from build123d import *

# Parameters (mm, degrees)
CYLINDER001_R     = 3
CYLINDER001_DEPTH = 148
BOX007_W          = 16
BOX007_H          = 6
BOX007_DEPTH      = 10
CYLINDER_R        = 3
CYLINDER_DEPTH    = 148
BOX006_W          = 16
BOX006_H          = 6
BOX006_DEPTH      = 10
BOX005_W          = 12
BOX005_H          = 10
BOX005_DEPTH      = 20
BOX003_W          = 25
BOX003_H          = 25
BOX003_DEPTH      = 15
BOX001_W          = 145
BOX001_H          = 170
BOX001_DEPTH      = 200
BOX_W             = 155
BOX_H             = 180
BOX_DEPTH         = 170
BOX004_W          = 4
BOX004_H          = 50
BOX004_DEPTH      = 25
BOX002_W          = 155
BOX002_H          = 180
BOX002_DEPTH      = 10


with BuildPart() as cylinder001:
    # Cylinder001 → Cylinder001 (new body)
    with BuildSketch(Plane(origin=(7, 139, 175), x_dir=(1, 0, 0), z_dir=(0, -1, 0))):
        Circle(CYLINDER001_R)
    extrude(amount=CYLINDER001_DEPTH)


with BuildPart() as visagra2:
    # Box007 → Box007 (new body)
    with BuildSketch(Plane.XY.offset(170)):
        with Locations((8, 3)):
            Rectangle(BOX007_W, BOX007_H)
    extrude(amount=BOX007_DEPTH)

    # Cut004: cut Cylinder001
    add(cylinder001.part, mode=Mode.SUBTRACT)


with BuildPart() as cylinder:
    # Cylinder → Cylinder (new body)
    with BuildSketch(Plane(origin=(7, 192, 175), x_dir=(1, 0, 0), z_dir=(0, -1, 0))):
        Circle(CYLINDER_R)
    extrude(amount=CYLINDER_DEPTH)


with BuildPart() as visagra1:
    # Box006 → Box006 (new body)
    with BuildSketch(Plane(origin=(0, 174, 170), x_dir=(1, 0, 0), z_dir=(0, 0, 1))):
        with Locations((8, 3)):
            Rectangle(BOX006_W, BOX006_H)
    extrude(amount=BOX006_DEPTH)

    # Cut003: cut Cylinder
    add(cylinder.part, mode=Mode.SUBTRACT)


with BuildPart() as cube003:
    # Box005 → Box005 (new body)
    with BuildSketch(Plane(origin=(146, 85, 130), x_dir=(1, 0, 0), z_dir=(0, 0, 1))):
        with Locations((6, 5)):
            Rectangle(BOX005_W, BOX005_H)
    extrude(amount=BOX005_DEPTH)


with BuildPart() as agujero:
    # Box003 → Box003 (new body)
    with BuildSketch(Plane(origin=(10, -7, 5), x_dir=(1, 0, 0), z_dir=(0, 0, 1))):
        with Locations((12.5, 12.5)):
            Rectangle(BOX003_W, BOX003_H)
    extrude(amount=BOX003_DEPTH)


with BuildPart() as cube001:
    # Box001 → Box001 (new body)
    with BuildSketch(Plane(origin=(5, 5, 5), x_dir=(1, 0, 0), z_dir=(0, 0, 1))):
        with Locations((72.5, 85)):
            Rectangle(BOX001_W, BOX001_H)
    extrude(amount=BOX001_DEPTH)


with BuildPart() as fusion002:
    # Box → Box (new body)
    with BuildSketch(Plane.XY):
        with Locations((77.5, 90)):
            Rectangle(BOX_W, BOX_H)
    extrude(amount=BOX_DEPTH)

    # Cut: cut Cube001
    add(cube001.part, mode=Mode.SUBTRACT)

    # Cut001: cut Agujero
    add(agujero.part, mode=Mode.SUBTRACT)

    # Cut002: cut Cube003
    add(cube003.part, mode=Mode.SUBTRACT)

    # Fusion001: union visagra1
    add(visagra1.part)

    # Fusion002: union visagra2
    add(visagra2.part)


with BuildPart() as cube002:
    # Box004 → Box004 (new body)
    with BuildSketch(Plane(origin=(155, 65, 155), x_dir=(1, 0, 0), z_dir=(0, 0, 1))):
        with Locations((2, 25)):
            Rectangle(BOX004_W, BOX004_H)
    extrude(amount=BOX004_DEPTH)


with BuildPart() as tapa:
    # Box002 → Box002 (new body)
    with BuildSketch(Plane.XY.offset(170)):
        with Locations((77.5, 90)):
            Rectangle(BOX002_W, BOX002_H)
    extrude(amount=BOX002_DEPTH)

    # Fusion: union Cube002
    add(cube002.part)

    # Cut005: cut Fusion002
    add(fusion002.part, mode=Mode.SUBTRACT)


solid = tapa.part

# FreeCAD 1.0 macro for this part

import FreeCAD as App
import Part
import Sketcher

V = App.Vector
Q = App.Units.Quantity

doc = App.newDocument("Part")
body = doc.addObject("PartDesign::Body", "Body")

# Sketch on XZ plane
sketch1 = doc.addObject("Sketcher::SketchObject", "Sketch")
body.addObject(sketch1)
sketch1.AttachmentSupport = (doc.XZ_Plane, [""])
sketch1.MapMode = "FlatFace"
sketch1.AttachmentOffset = App.Placement(V(0, 0, -139), App.Rotation())
sketch1.addGeometry(Part.Circle(V(7, 175, 0), V(0, 0, 1), 3), False)
sketch1.addConstraint([
    Sketcher.Constraint("Diameter", 0, Q("6 mm")),
    Sketcher.Constraint("DistanceX", -1, 1, 0, 3, Q("7 mm")),
    Sketcher.Constraint("DistanceY", -1, 1, 0, 3, Q("175 mm")),
])
pad1 = doc.addObject("PartDesign::Pad", "Pad")
body.addObject(pad1)
pad1.Profile = sketch1
pad1.Length = 148
body2 = doc.addObject("PartDesign::Body", "Body001")

# Sketch on XY plane
sketch2 = doc.addObject("Sketcher::SketchObject", "Sketch001")
body2.addObject(sketch2)
sketch2.AttachmentSupport = (doc.getObject("XY_Plane001"), [""])
sketch2.MapMode = "FlatFace"
sketch2.AttachmentOffset = App.Placement(V(0, 0, 170), App.Rotation())
sketch2.addGeometry([
    Part.LineSegment(V(0, 6, 0), V(0, 0, 0)),
    Part.LineSegment(V(0, 0, 0), V(16, 0, 0)),
    Part.LineSegment(V(16, 0, 0), V(16, 6, 0)),
    Part.LineSegment(V(16, 6, 0), V(0, 6, 0)),
], False)
sketch2.addConstraint([
    Sketcher.Constraint("Coincident", 0, 2, 1, 1),
    Sketcher.Constraint("Coincident", 1, 2, 2, 1),
    Sketcher.Constraint("Coincident", 2, 2, 3, 1),
    Sketcher.Constraint("Coincident", 3, 2, 0, 1),
    Sketcher.Constraint("Vertical", 0),
    Sketcher.Constraint("Horizontal", 1),
    Sketcher.Constraint("Vertical", 2),
    Sketcher.Constraint("Horizontal", 3),
    Sketcher.Constraint("Coincident", 0, 2, -1, 1),
    Sketcher.Constraint("DistanceX", 1, 1, 1, 2, Q("16 mm")),
    Sketcher.Constraint("DistanceY", 0, 2, 0, 1, Q("6 mm")),
])
pad2 = doc.addObject("PartDesign::Pad", "Pad001")
body2.addObject(pad2)
pad2.Profile = sketch2
pad2.Length = 10
doc.recompute()

boolean = doc.addObject("PartDesign::Boolean", "Boolean")
body2.addObject(boolean)
boolean.Type = "Cut"
boolean.addObjects([body])
body3 = doc.addObject("PartDesign::Body", "Body002")

# Sketch on XZ plane
sketch3 = doc.addObject("Sketcher::SketchObject", "Sketch002")
body3.addObject(sketch3)
sketch3.AttachmentSupport = (doc.getObject("XZ_Plane002"), [""])
sketch3.MapMode = "FlatFace"
sketch3.AttachmentOffset = App.Placement(V(0, 0, -192), App.Rotation())
sketch3.addGeometry(Part.Circle(V(7, 175, 0), V(0, 0, 1), 3), False)
sketch3.addConstraint([
    Sketcher.Constraint("Diameter", 0, Q("6 mm")),
    Sketcher.Constraint("DistanceX", -1, 1, 0, 3, Q("7 mm")),
    Sketcher.Constraint("DistanceY", -1, 1, 0, 3, Q("175 mm")),
])
pad3 = doc.addObject("PartDesign::Pad", "Pad002")
body3.addObject(pad3)
pad3.Profile = sketch3
pad3.Length = 148
body4 = doc.addObject("PartDesign::Body", "Body003")

# Sketch on XY plane
sketch4 = doc.addObject("Sketcher::SketchObject", "Sketch003")
body4.addObject(sketch4)
sketch4.AttachmentSupport = (doc.getObject("XY_Plane003"), [""])
sketch4.MapMode = "FlatFace"
sketch4.AttachmentOffset = App.Placement(V(0, 0, 170), App.Rotation())
sketch4.addGeometry([
    Part.LineSegment(V(0, 180, 0), V(0, 174, 0)),
    Part.LineSegment(V(0, 174, 0), V(16, 174, 0)),
    Part.LineSegment(V(16, 174, 0), V(16, 180, 0)),
    Part.LineSegment(V(16, 180, 0), V(0, 180, 0)),
], False)
sketch4.addConstraint([
    Sketcher.Constraint("Coincident", 0, 2, 1, 1),
    Sketcher.Constraint("Coincident", 1, 2, 2, 1),
    Sketcher.Constraint("Coincident", 2, 2, 3, 1),
    Sketcher.Constraint("Coincident", 3, 2, 0, 1),
    Sketcher.Constraint("Vertical", 0),
    Sketcher.Constraint("Horizontal", 1),
    Sketcher.Constraint("Vertical", 2),
    Sketcher.Constraint("Horizontal", 3),
    Sketcher.Constraint("PointOnObject", 0, 2, -2),
    Sketcher.Constraint("DistanceX", 1, 1, 1, 2, Q("16 mm")),
    Sketcher.Constraint("DistanceY", 0, 2, 0, 1, Q("6 mm")),
    Sketcher.Constraint("DistanceY", -1, 1, 0, 2, Q("174 mm")),
])
pad4 = doc.addObject("PartDesign::Pad", "Pad003")
body4.addObject(pad4)
pad4.Profile = sketch4
pad4.Length = 10
doc.recompute()

boolean2 = doc.addObject("PartDesign::Boolean", "Boolean001")
body4.addObject(boolean2)
boolean2.Type = "Cut"
boolean2.addObjects([body3])
body5 = doc.addObject("PartDesign::Body", "Body004")

# Sketch on XY plane
sketch5 = doc.addObject("Sketcher::SketchObject", "Sketch004")
body5.addObject(sketch5)
sketch5.AttachmentSupport = (doc.getObject("XY_Plane004"), [""])
sketch5.MapMode = "FlatFace"
sketch5.AttachmentOffset = App.Placement(V(0, 0, 130), App.Rotation())
sketch5.addGeometry([
    Part.LineSegment(V(146, 95, 0), V(146, 85, 0)),
    Part.LineSegment(V(146, 85, 0), V(158, 85, 0)),
    Part.LineSegment(V(158, 85, 0), V(158, 95, 0)),
    Part.LineSegment(V(158, 95, 0), V(146, 95, 0)),
], False)
sketch5.addConstraint([
    Sketcher.Constraint("Coincident", 0, 2, 1, 1),
    Sketcher.Constraint("Coincident", 1, 2, 2, 1),
    Sketcher.Constraint("Coincident", 2, 2, 3, 1),
    Sketcher.Constraint("Coincident", 3, 2, 0, 1),
    Sketcher.Constraint("Vertical", 0),
    Sketcher.Constraint("Horizontal", 1),
    Sketcher.Constraint("Vertical", 2),
    Sketcher.Constraint("Horizontal", 3),
    Sketcher.Constraint("DistanceX", 1, 1, 1, 2, Q("12 mm")),
    Sketcher.Constraint("DistanceY", 0, 2, 0, 1, Q("10 mm")),
    Sketcher.Constraint("DistanceX", -1, 1, 0, 2, Q("146 mm")),
    Sketcher.Constraint("DistanceY", -1, 1, 0, 2, Q("85 mm")),
])
pad5 = doc.addObject("PartDesign::Pad", "Pad004")
body5.addObject(pad5)
pad5.Profile = sketch5
pad5.Length = 20
body6 = doc.addObject("PartDesign::Body", "Body005")

# Sketch on XY plane
sketch6 = doc.addObject("Sketcher::SketchObject", "Sketch005")
body6.addObject(sketch6)
sketch6.AttachmentSupport = (doc.getObject("XY_Plane005"), [""])
sketch6.MapMode = "FlatFace"
sketch6.AttachmentOffset = App.Placement(V(0, 0, 5), App.Rotation())
sketch6.addGeometry([
    Part.LineSegment(V(10, 18, 0), V(10, -7, 0)),
    Part.LineSegment(V(10, -7, 0), V(35, -7, 0)),
    Part.LineSegment(V(35, -7, 0), V(35, 18, 0)),
    Part.LineSegment(V(35, 18, 0), V(10, 18, 0)),
], False)
sketch6.addConstraint([
    Sketcher.Constraint("Coincident", 0, 2, 1, 1),
    Sketcher.Constraint("Coincident", 1, 2, 2, 1),
    Sketcher.Constraint("Coincident", 2, 2, 3, 1),
    Sketcher.Constraint("Coincident", 3, 2, 0, 1),
    Sketcher.Constraint("Vertical", 0),
    Sketcher.Constraint("Horizontal", 1),
    Sketcher.Constraint("Vertical", 2),
    Sketcher.Constraint("Horizontal", 3),
    Sketcher.Constraint("Equal", 3, 0),
    Sketcher.Constraint("DistanceX", 1, 1, 1, 2, Q("25 mm")),
    Sketcher.Constraint("DistanceX", -1, 1, 0, 2, Q("10 mm")),
    Sketcher.Constraint("DistanceY", 0, 2, -1, 1, Q("7 mm")),
])
pad6 = doc.addObject("PartDesign::Pad", "Pad005")
body6.addObject(pad6)
pad6.Profile = sketch6
pad6.Length = 15
body7 = doc.addObject("PartDesign::Body", "Body006")

# Sketch on XY plane
sketch7 = doc.addObject("Sketcher::SketchObject", "Sketch006")
body7.addObject(sketch7)
sketch7.AttachmentSupport = (doc.getObject("XY_Plane006"), [""])
sketch7.MapMode = "FlatFace"
sketch7.AttachmentOffset = App.Placement(V(0, 0, 5), App.Rotation())
sketch7.addGeometry([
    Part.LineSegment(V(5, 175, 0), V(5, 5, 0)),
    Part.LineSegment(V(5, 5, 0), V(150, 5, 0)),
    Part.LineSegment(V(150, 5, 0), V(150, 175, 0)),
    Part.LineSegment(V(150, 175, 0), V(5, 175, 0)),
], False)
sketch7.addConstraint([
    Sketcher.Constraint("Coincident", 0, 2, 1, 1),
    Sketcher.Constraint("Coincident", 1, 2, 2, 1),
    Sketcher.Constraint("Coincident", 2, 2, 3, 1),
    Sketcher.Constraint("Coincident", 3, 2, 0, 1),
    Sketcher.Constraint("Vertical", 0),
    Sketcher.Constraint("Horizontal", 1),
    Sketcher.Constraint("Vertical", 2),
    Sketcher.Constraint("Horizontal", 3),
    Sketcher.Constraint("DistanceX", 1, 1, 1, 2, Q("145 mm")),
    Sketcher.Constraint("DistanceY", 0, 2, 0, 1, Q("170 mm")),
    Sketcher.Constraint("DistanceX", -1, 1, 0, 2, Q("5 mm")),
    Sketcher.Constraint("DistanceY", -1, 1, 0, 2, Q("5 mm")),
])
pad7 = doc.addObject("PartDesign::Pad", "Pad006")
body7.addObject(pad7)
pad7.Profile = sketch7
pad7.Length = 200
body8 = doc.addObject("PartDesign::Body", "Body007")

# Sketch on XY plane
sketch8 = doc.addObject("Sketcher::SketchObject", "Sketch007")
body8.addObject(sketch8)
sketch8.AttachmentSupport = (doc.getObject("XY_Plane007"), [""])
sketch8.MapMode = "FlatFace"
sketch8.addGeometry([
    Part.LineSegment(V(0, 180, 0), V(0, 0, 0)),
    Part.LineSegment(V(0, 0, 0), V(155, 0, 0)),
    Part.LineSegment(V(155, 0, 0), V(155, 180, 0)),
    Part.LineSegment(V(155, 180, 0), V(0, 180, 0)),
], False)
sketch8.addConstraint([
    Sketcher.Constraint("Coincident", 0, 2, 1, 1),
    Sketcher.Constraint("Coincident", 1, 2, 2, 1),
    Sketcher.Constraint("Coincident", 2, 2, 3, 1),
    Sketcher.Constraint("Coincident", 3, 2, 0, 1),
    Sketcher.Constraint("Vertical", 0),
    Sketcher.Constraint("Horizontal", 1),
    Sketcher.Constraint("Vertical", 2),
    Sketcher.Constraint("Horizontal", 3),
    Sketcher.Constraint("Coincident", 0, 2, -1, 1),
    Sketcher.Constraint("DistanceX", 1, 1, 1, 2, Q("155 mm")),
    Sketcher.Constraint("DistanceY", 0, 2, 0, 1, Q("180 mm")),
])
pad8 = doc.addObject("PartDesign::Pad", "Pad007")
body8.addObject(pad8)
pad8.Profile = sketch8
pad8.Length = 170
doc.recompute()

boolean3 = doc.addObject("PartDesign::Boolean", "Boolean002")
body8.addObject(boolean3)
boolean3.Type = "Cut"
boolean3.addObjects([body7])
doc.recompute()

boolean4 = doc.addObject("PartDesign::Boolean", "Boolean003")
body8.addObject(boolean4)
boolean4.Type = "Cut"
boolean4.addObjects([body6])
doc.recompute()

boolean5 = doc.addObject("PartDesign::Boolean", "Boolean004")
body8.addObject(boolean5)
boolean5.Type = "Cut"
boolean5.addObjects([body5])
doc.recompute()

boolean6 = doc.addObject("PartDesign::Boolean", "Boolean005")
body8.addObject(boolean6)
boolean6.Type = "Fuse"
boolean6.addObjects([body4])
doc.recompute()

boolean7 = doc.addObject("PartDesign::Boolean", "Boolean006")
body8.addObject(boolean7)
boolean7.Type = "Fuse"
boolean7.addObjects([body2])
body9 = doc.addObject("PartDesign::Body", "Body008")

# Sketch on XY plane
sketch9 = doc.addObject("Sketcher::SketchObject", "Sketch008")
body9.addObject(sketch9)
sketch9.AttachmentSupport = (doc.getObject("XY_Plane008"), [""])
sketch9.MapMode = "FlatFace"
sketch9.AttachmentOffset = App.Placement(V(0, 0, 155), App.Rotation())
sketch9.addGeometry([
    Part.LineSegment(V(155, 115, 0), V(155, 65, 0)),
    Part.LineSegment(V(155, 65, 0), V(159, 65, 0)),
    Part.LineSegment(V(159, 65, 0), V(159, 115, 0)),
    Part.LineSegment(V(159, 115, 0), V(155, 115, 0)),
], False)
sketch9.addConstraint([
    Sketcher.Constraint("Coincident", 0, 2, 1, 1),
    Sketcher.Constraint("Coincident", 1, 2, 2, 1),
    Sketcher.Constraint("Coincident", 2, 2, 3, 1),
    Sketcher.Constraint("Coincident", 3, 2, 0, 1),
    Sketcher.Constraint("Vertical", 0),
    Sketcher.Constraint("Horizontal", 1),
    Sketcher.Constraint("Vertical", 2),
    Sketcher.Constraint("Horizontal", 3),
    Sketcher.Constraint("DistanceX", 1, 1, 1, 2, Q("4 mm")),
    Sketcher.Constraint("DistanceY", 0, 2, 0, 1, Q("50 mm")),
    Sketcher.Constraint("DistanceX", -1, 1, 0, 2, Q("155 mm")),
    Sketcher.Constraint("DistanceY", -1, 1, 0, 2, Q("65 mm")),
])
pad9 = doc.addObject("PartDesign::Pad", "Pad008")
body9.addObject(pad9)
pad9.Profile = sketch9
pad9.Length = 25
body10 = doc.addObject("PartDesign::Body", "Body009")

# Sketch on XY plane
sketch10 = doc.addObject("Sketcher::SketchObject", "Sketch009")
body10.addObject(sketch10)
sketch10.AttachmentSupport = (doc.getObject("XY_Plane009"), [""])
sketch10.MapMode = "FlatFace"
sketch10.AttachmentOffset = App.Placement(V(0, 0, 170), App.Rotation())
sketch10.addGeometry([
    Part.LineSegment(V(0, 180, 0), V(0, 0, 0)),
    Part.LineSegment(V(0, 0, 0), V(155, 0, 0)),
    Part.LineSegment(V(155, 0, 0), V(155, 180, 0)),
    Part.LineSegment(V(155, 180, 0), V(0, 180, 0)),
], False)
sketch10.addConstraint([
    Sketcher.Constraint("Coincident", 0, 2, 1, 1),
    Sketcher.Constraint("Coincident", 1, 2, 2, 1),
    Sketcher.Constraint("Coincident", 2, 2, 3, 1),
    Sketcher.Constraint("Coincident", 3, 2, 0, 1),
    Sketcher.Constraint("Vertical", 0),
    Sketcher.Constraint("Horizontal", 1),
    Sketcher.Constraint("Vertical", 2),
    Sketcher.Constraint("Horizontal", 3),
    Sketcher.Constraint("Coincident", 0, 2, -1, 1),
    Sketcher.Constraint("DistanceX", 1, 1, 1, 2, Q("155 mm")),
    Sketcher.Constraint("DistanceY", 0, 2, 0, 1, Q("180 mm")),
])
pad10 = doc.addObject("PartDesign::Pad", "Pad009")
body10.addObject(pad10)
pad10.Profile = sketch10
pad10.Length = 10
doc.recompute()

boolean8 = doc.addObject("PartDesign::Boolean", "Boolean007")
body10.addObject(boolean8)
boolean8.Type = "Fuse"
boolean8.addObjects([body9])
doc.recompute()

boolean9 = doc.addObject("PartDesign::Boolean", "Boolean008")
body10.addObject(boolean9)
boolean9.Type = "Cut"
boolean9.addObjects([body8])

doc.recompute()
